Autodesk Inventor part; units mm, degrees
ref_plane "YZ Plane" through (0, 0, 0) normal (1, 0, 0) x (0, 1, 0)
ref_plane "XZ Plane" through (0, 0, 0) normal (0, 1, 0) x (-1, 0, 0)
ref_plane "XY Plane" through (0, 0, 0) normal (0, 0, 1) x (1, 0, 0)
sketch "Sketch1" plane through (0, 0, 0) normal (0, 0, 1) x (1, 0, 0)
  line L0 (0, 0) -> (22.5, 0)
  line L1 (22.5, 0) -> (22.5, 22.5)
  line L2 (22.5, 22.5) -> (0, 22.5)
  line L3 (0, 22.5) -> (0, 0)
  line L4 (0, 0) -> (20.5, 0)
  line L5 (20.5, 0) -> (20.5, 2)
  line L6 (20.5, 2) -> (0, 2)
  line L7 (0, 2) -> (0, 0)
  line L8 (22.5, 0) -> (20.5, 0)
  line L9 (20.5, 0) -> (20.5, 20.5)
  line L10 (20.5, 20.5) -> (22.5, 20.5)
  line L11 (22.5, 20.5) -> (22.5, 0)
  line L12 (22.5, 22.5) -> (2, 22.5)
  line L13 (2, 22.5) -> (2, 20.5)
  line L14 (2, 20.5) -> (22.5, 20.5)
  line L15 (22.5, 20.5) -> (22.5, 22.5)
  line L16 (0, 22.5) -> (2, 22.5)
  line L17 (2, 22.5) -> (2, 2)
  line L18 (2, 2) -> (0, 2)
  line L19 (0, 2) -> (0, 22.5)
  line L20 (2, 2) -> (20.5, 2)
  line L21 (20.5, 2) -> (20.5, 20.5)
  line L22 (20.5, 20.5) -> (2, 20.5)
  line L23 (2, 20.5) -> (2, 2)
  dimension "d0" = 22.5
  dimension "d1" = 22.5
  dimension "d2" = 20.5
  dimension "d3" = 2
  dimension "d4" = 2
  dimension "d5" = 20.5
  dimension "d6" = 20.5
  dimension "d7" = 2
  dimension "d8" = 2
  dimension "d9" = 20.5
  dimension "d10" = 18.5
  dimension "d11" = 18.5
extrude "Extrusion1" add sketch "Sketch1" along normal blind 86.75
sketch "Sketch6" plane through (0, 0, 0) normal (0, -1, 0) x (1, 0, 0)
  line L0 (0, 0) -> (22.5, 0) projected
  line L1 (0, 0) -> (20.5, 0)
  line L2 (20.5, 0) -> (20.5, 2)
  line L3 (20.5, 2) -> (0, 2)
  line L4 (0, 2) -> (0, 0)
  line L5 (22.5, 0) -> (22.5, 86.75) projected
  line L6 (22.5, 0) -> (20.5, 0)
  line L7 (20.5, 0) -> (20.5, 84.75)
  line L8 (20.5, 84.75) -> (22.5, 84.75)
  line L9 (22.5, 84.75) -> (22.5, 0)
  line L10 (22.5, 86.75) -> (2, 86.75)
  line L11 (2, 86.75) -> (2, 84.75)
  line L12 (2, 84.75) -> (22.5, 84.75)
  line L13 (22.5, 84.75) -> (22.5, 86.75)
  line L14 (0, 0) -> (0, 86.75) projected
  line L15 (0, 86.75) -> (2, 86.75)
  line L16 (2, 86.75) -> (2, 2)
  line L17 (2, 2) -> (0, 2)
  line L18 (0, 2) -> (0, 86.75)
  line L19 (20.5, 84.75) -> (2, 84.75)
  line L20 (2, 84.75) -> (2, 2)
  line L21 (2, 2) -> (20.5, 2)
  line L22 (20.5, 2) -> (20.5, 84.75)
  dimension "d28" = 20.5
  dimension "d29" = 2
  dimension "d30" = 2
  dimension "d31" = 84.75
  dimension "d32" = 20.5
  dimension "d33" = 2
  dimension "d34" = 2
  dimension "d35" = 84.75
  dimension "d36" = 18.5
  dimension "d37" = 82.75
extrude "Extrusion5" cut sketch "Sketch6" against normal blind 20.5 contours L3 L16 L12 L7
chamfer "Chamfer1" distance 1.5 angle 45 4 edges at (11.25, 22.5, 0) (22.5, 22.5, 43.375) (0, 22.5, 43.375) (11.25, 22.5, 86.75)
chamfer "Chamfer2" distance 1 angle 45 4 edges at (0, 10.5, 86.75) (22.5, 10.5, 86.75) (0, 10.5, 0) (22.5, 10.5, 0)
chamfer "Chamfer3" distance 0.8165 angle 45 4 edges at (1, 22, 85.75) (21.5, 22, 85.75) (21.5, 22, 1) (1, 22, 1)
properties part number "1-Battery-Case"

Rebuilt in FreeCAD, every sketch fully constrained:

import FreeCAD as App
import Part
import Sketcher
from FreeCAD import Vector
Q = App.Units.Quantity


def edges_at(feature, points):
    """Names of the edges that pass closest to the given points."""
    edges = feature.Shape.Edges
    near = lambda p: min(range(len(edges)), key=lambda i: edges[i].distToShape(Part.Vertex(*p))[0])
    return sorted({f"Edge{near(p) + 1}" for p in points})


def add_polygon(sketch, points):
    """Adds a closed chain of lines whose ends are joined by coincident constraints."""
    first, n = sketch.GeometryCount, len(points)
    for a, b in zip(points, points[1:] + points[:1]):
        sketch.addGeometry(Part.LineSegment(App.Vector(*a, 0), App.Vector(*b, 0)), False)
    for i in range(n):
        sketch.addConstraint(Sketcher.Constraint("Coincident", first + i, 2, first + (i + 1) % n, 1))

doc = App.newDocument("Part")
body = doc.addObject("PartDesign::Body", "Body")

# Sketch on XY plane
sketch1 = doc.addObject("Sketcher::SketchObject", "Sketch")
body.addObject(sketch1)
sketch1.AttachmentSupport = (doc.XY_Plane, [""])
sketch1.MapMode = "FlatFace"
add_polygon(sketch1, [(0, 0), (22, 0), (22, 22), (0, 22)])  # lines 0-3
sketch1.addConstraint([
    Sketcher.Constraint("Horizontal", 0),
    Sketcher.Constraint("Vertical", 1),
    Sketcher.Constraint("Horizontal", 2),
    Sketcher.Constraint("Vertical", 3),
    Sketcher.Constraint("Coincident", 3, 2, -1, 1),
    Sketcher.Constraint("Equal", 2, 1),
    Sketcher.Constraint("DistanceX", 0, 1, 0, 2, Q("22.5 mm")),
])
pad1 = doc.addObject("PartDesign::Pad", "Pad")
body.addObject(pad1)
pad1.Profile = sketch1
pad1.Length = 86.75

# Sketch on XZ plane
sketch2 = doc.addObject("Sketcher::SketchObject", "Sketch001")
body.addObject(sketch2)
sketch2.AttachmentSupport = (doc.XZ_Plane, [""])
sketch2.MapMode = "FlatFace"
add_polygon(sketch2, [(2, 2), (20, 2), (20, 85), (2, 85)])  # lines 0-3
sketch2.addConstraint([
    Sketcher.Constraint("Horizontal", 0),
    Sketcher.Constraint("Vertical", 1),
    Sketcher.Constraint("Horizontal", 2),
    Sketcher.Constraint("Vertical", 3),
    Sketcher.Constraint("DistanceX", 0, 1, 0, 2, Q("18.5 mm")),
    Sketcher.Constraint("DistanceY", -1, 1, 0, 2, Q("2 mm")),
    Sketcher.Constraint("DistanceX", -1, 1, 2, 2, Q("2 mm")),
    Sketcher.Constraint("DistanceY", 1, 1, 1, 2, Q("82.75 mm")),
])
pocket1 = doc.addObject("PartDesign::Pocket", "Pocket")
body.addObject(pocket1)
pocket1.Profile = sketch2
pocket1.Length = 20.5
doc.recompute()

chamfer = doc.addObject("PartDesign::Chamfer", "Chamfer")
body.addObject(chamfer)
chamfer.Base = (pocket1, edges_at(pocket1, [
    (11.25, 22.5, 0),
    (22.5, 22.5, 43.375),
    (0, 22.5, 43.375),
    (11.25, 22.5, 86.75),
]))
chamfer.Size = 1.5
doc.recompute()

chamfer2 = doc.addObject("PartDesign::Chamfer", "Chamfer001")
body.addObject(chamfer2)
chamfer2.Base = (chamfer, edges_at(chamfer, [
    (0, 10.5, 86.75),
    (22.5, 10.5, 86.75),
    (0, 10.5, 0),
    (22.5, 10.5, 0),
]))
chamfer2.Size = 1
doc.recompute()

chamfer3 = doc.addObject("PartDesign::Chamfer", "Chamfer002")
body.addObject(chamfer3)
chamfer3.Base = (chamfer2, edges_at(chamfer2, [
    (1, 22, 85.75),
    (21.5, 22, 85.75),
    (21.5, 22, 1),
    (1, 22, 1),
]))
chamfer3.Size = 0.8165

doc.recompute()
